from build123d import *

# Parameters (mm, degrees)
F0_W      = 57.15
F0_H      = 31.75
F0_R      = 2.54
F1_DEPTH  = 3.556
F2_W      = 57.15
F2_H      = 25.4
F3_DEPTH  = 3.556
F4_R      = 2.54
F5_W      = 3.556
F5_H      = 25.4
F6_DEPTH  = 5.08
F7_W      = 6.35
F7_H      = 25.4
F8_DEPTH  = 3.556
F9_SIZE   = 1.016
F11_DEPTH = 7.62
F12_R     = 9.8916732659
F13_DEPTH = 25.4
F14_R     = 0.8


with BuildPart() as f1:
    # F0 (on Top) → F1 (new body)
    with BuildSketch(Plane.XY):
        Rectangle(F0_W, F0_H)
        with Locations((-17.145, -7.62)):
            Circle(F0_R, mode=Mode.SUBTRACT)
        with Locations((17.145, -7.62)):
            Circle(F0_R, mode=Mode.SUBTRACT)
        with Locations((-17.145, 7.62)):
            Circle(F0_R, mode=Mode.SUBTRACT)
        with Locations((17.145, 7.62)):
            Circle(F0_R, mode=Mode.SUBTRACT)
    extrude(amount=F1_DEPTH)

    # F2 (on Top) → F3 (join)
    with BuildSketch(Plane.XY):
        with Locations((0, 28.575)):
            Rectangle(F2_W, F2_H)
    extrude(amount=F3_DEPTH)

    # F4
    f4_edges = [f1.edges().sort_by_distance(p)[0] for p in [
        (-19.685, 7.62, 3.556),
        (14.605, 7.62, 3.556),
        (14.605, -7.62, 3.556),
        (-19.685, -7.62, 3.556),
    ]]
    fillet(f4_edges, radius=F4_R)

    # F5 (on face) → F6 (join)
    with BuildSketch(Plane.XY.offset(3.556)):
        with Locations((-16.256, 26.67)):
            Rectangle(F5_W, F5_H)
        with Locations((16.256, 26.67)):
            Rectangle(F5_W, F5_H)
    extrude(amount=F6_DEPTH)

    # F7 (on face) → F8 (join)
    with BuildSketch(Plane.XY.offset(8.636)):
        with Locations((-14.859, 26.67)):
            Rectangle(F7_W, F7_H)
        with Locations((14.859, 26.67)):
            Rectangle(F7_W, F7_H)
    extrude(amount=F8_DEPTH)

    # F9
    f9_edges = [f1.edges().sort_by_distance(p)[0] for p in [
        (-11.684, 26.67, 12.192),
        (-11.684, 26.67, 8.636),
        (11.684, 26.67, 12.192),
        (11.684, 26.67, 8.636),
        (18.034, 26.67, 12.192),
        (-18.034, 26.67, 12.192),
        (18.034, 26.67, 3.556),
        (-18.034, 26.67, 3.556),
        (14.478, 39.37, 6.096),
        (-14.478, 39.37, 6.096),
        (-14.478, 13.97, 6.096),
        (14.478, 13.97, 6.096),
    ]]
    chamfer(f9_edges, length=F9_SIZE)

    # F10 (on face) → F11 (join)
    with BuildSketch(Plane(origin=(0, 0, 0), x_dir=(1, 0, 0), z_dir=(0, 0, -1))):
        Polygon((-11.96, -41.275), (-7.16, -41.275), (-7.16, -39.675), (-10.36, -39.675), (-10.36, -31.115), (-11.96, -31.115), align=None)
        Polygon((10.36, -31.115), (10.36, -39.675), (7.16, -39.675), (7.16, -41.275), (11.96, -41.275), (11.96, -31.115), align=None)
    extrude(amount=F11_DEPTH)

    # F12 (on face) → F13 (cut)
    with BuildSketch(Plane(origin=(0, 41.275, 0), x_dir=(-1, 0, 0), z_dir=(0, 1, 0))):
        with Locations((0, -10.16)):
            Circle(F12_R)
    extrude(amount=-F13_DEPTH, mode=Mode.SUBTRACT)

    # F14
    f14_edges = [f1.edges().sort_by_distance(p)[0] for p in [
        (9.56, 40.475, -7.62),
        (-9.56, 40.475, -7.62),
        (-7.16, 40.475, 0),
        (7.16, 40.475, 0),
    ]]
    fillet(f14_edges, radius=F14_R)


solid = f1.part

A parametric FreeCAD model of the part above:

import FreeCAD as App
import Part
import Sketcher

V = App.Vector
Q = App.Units.Quantity


def edges_at(feature, points):
    """Names of the edges that pass closest to the given points."""
    edges = feature.Shape.Edges
    near = lambda p: min(range(len(edges)), key=lambda i: edges[i].distToShape(Part.Vertex(*p))[0])
    return sorted({f"Edge{near(p) + 1}" for p in points})


def add_polygon(sketch, points):
    """Adds a closed chain of lines whose ends are joined by coincident constraints."""
    first, n = sketch.GeometryCount, len(points)
    for a, b in zip(points, points[1:] + points[:1]):
        sketch.addGeometry(Part.LineSegment(App.Vector(*a, 0), App.Vector(*b, 0)), False)
    for i in range(n):
        sketch.addConstraint(Sketcher.Constraint("Coincident", first + i, 2, first + (i + 1) % n, 1))

doc = App.newDocument("Part")
body = doc.addObject("PartDesign::Body", "Body")

# Sketch on XY plane
sketch1 = body.newObject("Sketcher::SketchObject", "Sketch")
sketch1.AttachmentSupport = (doc.getObject("XY_Plane"), [""])
sketch1.MapMode = "FlatFace"
add_polygon(sketch1, [(-28.575, 15.875), (-28.575, -15.875), (28.575, -15.875), (28.575, 15.875)])  # lines 0-3
sketch1.addGeometry(Part.Circle(V(-17.145, -7.62, 0), V(0, 0, 1), 2.54), False)  # 4
sketch1.addGeometry(Part.Circle(V(17.145, -7.62, 0), V(0, 0, 1), 2.54), False)  # 5
sketch1.addGeometry(Part.Circle(V(-17.145, 7.62, 0), V(0, 0, 1), 2.54), False)  # 6
sketch1.addGeometry(Part.Circle(V(17.145, 7.62, 0), V(0, 0, 1), 2.54), False)  # 7
sketch1.addConstraint([
    Sketcher.Constraint("Vertical", 0),
    Sketcher.Constraint("Horizontal", 1),
    Sketcher.Constraint("Vertical", 2),
    Sketcher.Constraint("Horizontal", 3),
    Sketcher.Constraint("Equal", 4, 5),
    Sketcher.Constraint("Equal", 5, 6),
    Sketcher.Constraint("Equal", 6, 7),
    Sketcher.Constraint("Symmetric", 5, 3, 6, 3, -1, 1),
    Sketcher.Constraint("Symmetric", 4, 3, 7, 3, -1, 1),
    Sketcher.Constraint("Symmetric", 0, 2, 2, 2, -1, 1),
    Sketcher.Constraint("Symmetric", 4, 3, 5, 3, -2),
    Sketcher.Constraint("Diameter", 4, Q("0.2 in")),
    Sketcher.Constraint("DistanceX", 1, 1, 1, 2, Q("2.25 in")),
    Sketcher.Constraint("DistanceY", 0, 2, 0, 1, Q("1.25 in")),
    Sketcher.Constraint("DistanceY", 4, 3, -1, 1, Q("0.3 in")),
    Sketcher.Constraint("DistanceX", 0, 2, 5, 3, Q("1.8 in")),
])
pad1 = body.newObject("PartDesign::Pad", "Pad")
pad1.Profile = sketch1
pad1.Length = Q("0.14 in")

# Sketch on XY plane
sketch2 = body.newObject("Sketcher::SketchObject", "Sketch001")
sketch2.AttachmentSupport = (doc.getObject("XY_Plane"), [""])
sketch2.MapMode = "FlatFace"
add_polygon(sketch2, [(-28.575, 41.275), (-28.575, 15.875), (28.575, 15.875), (28.575, 41.275)])  # lines 0-3
sketch2.addConstraint([
    Sketcher.Constraint("Vertical", 0),
    Sketcher.Constraint("Horizontal", 1),
    Sketcher.Constraint("Vertical", 2),
    Sketcher.Constraint("Horizontal", 3),
    Sketcher.Constraint("DistanceY", 0, 2, 0, 1, Q("1 in")),
    Sketcher.Constraint("DistanceX", 1, 1, 1, 2, Q("2.25 in")),
    Sketcher.Constraint("DistanceX", 0, 2, -1, 1, Q("1.125 in")),
    Sketcher.Constraint("DistanceY", -1, 1, 0, 2, Q("0.625 in")),
])
pad2 = body.newObject("PartDesign::Pad", "Pad001")
pad2.Profile = sketch2
pad2.Length = Q("0.14 in")
doc.recompute()

fillet = body.newObject("PartDesign::Fillet", "Fillet")
fillet.Base = (pad2, edges_at(pad2, [
    (-19.685, 7.62, 3.556),
    (14.605, 7.62, 3.556),
    (14.605, -7.62, 3.556),
    (-19.685, -7.62, 3.556),
]))
fillet.Radius = Q("0.1 in")

# Sketch on XY plane
sketch3 = body.newObject("Sketcher::SketchObject", "Sketch002")
sketch3.AttachmentSupport = (doc.getObject("XY_Plane"), [""])
sketch3.MapMode = "FlatFace"
sketch3.AttachmentOffset = App.Placement(V(0, 0, 0.14 * 25.4), App.Rotation())
add_polygon(sketch3, [(-18.034, 39.37), (-18.034, 13.97), (-14.478, 13.97), (-14.478, 39.37)])  # lines 0-3
add_polygon(sketch3, [(14.478, 39.37), (14.478, 13.97), (18.034, 13.97), (18.034, 39.37)])  # lines 4-7
sketch3.addConstraint([
    Sketcher.Constraint("Vertical", 0),
    Sketcher.Constraint("Horizontal", 1),
    Sketcher.Constraint("Vertical", 2),
    Sketcher.Constraint("Horizontal", 3),
    Sketcher.Constraint("Vertical", 4),
    Sketcher.Constraint("Horizontal", 5),
    Sketcher.Constraint("Vertical", 6),
    Sketcher.Constraint("Horizontal", 7),
    Sketcher.Constraint("Symmetric", 1, 2, 4, 2, -2),
    Sketcher.Constraint("Symmetric", 3, 2, 6, 2, -2),
    Sketcher.Constraint("DistanceY", 0, 2, 0, 1, Q("1 in")),
    Sketcher.Constraint("DistanceX", 1, 1, 1, 2, Q("0.14 in")),
    Sketcher.Constraint("DistanceX", 0, 2, -1, 1, Q("0.71 in")),
    Sketcher.Constraint("DistanceY", -1, 1, 0, 2, Q("0.55 in")),
])
pad3 = body.newObject("PartDesign::Pad", "Pad002")
pad3.Profile = sketch3
pad3.Length = Q("0.2 in")

# Sketch on XY plane
sketch4 = body.newObject("Sketcher::SketchObject", "Sketch003")
sketch4.AttachmentSupport = (doc.getObject("XY_Plane"), [""])
sketch4.MapMode = "FlatFace"
sketch4.AttachmentOffset = App.Placement(V(0, 0, 0.34 * 25.4), App.Rotation())
add_polygon(sketch4, [(-18.034, 39.37), (-18.034, 13.97), (-11.684, 13.97), (-11.684, 39.37)])  # lines 0-3
add_polygon(sketch4, [(11.684, 39.37), (11.684, 13.97), (18.034, 13.97), (18.034, 39.37)])  # lines 4-7
sketch4.addConstraint([
    Sketcher.Constraint("Vertical", 0),
    Sketcher.Constraint("Horizontal", 1),
    Sketcher.Constraint("Vertical", 2),
    Sketcher.Constraint("Horizontal", 3),
    Sketcher.Constraint("Vertical", 4),
    Sketcher.Constraint("Horizontal", 5),
    Sketcher.Constraint("Vertical", 6),
    Sketcher.Constraint("Horizontal", 7),
    Sketcher.Constraint("Symmetric", 1, 2, 4, 2, -2),
    Sketcher.Constraint("Symmetric", 3, 2, 6, 2, -2),
    Sketcher.Constraint("DistanceY", 0, 2, 0, 1, Q("1 in")),
    Sketcher.Constraint("DistanceX", 1, 1, 1, 2, Q("0.25 in")),
    Sketcher.Constraint("DistanceX", 0, 2, -1, 1, Q("0.71 in")),
    Sketcher.Constraint("DistanceY", -1, 1, 0, 2, Q("0.55 in")),
])
pad4 = body.newObject("PartDesign::Pad", "Pad003")
pad4.Profile = sketch4
pad4.Length = Q("0.14 in")
doc.recompute()

chamfer = body.newObject("PartDesign::Chamfer", "Chamfer")
chamfer.Base = (pad4, edges_at(pad4, [
    (-11.684, 26.67, 12.192),
    (-11.684, 26.67, 8.636),
    (11.684, 26.67, 12.192),
    (11.684, 26.67, 8.636),
    (18.034, 26.67, 12.192),
    (-18.034, 26.67, 12.192),
    (18.034, 26.67, 3.556),
    (-18.034, 26.67, 3.556),
    (14.478, 39.37, 6.096),
    (-14.478, 39.37, 6.096),
    (-14.478, 13.97, 6.096),
    (14.478, 13.97, 6.096),
]))
chamfer.Size = Q("0.04 in")

# Sketch on XY plane
sketch5 = body.newObject("Sketcher::SketchObject", "Sketch004")
sketch5.AttachmentSupport = (doc.getObject("XY_Plane"), [""])
sketch5.MapMode = "FlatFace"
add_polygon(sketch5, [(-11.96, 41.275), (-7.16, 41.275), (-7.16, 39.675), (-10.36, 39.675), (-10.36, 31.115), (-11.96, 31.115)])  # lines 0-5
add_polygon(sketch5, [(10.36, 31.115), (10.36, 39.675), (7.16, 39.675), (7.16, 41.275), (11.96, 41.275), (11.96, 31.115)])  # lines 6-11
sketch5.addConstraint([
    Sketcher.Constraint("Horizontal", 0),
    Sketcher.Constraint("Vertical", 1),
    Sketcher.Constraint("Horizontal", 2),
    Sketcher.Constraint("Vertical", 3),
    Sketcher.Constraint("Horizontal", 4),
    Sketcher.Constraint("Vertical", 5),
    Sketcher.Constraint("Vertical", 6),
    Sketcher.Constraint("Horizontal", 7),
    Sketcher.Constraint("Vertical", 8),
    Sketcher.Constraint("Horizontal", 9),
    Sketcher.Constraint("Vertical", 10),
    Sketcher.Constraint("Horizontal", 11),
    Sketcher.Constraint("Symmetric", 2, 2, 6, 2, -2),
    Sketcher.Constraint("Symmetric", 0, 2, 8, 2, -2),
    Sketcher.Constraint("Symmetric", 4, 2, 10, 2, -2),
    Sketcher.Constraint("Equal", 11, 1),
    Sketcher.Constraint("DistanceY", 5, 1, 5, 2, Q("0.4 in")),
    Sketcher.Constraint("DistanceY", -1, 1, 0, 2, Q("1.625 in")),
    Sketcher.Constraint("DistanceX", 0, 1, 0, 2, 4.8),
    Sketcher.Constraint("DistanceX", 2, 2, 2, 1, 3.2),
    Sketcher.Constraint("DistanceX", 0, 2, -1, 1, 7.16),
])
pad5 = body.newObject("PartDesign::Pad", "Pad004")
pad5.Profile = sketch5
pad5.Length = Q("0.3 in")
pad5.Reversed = True

# Sketch on XZ plane
sketch6 = body.newObject("Sketcher::SketchObject", "Sketch005")
sketch6.AttachmentSupport = (doc.getObject("XZ_Plane"), [""])
sketch6.MapMode = "FlatFace"
sketch6.AttachmentOffset = App.Placement(V(0, 0, -1.625 * 25.4), App.Rotation())
sketch6.addGeometry(Part.Circle(V(0, -10.16, 0), V(0, 0, 1), 9.891673), False)
sketch6.addConstraint([
    Sketcher.Constraint("PointOnObject", 0, 3, -2),
    Sketcher.Constraint("DistanceY", 0, 3, -1, 1, Q("0.4 in")),
    Sketcher.Constraint("Diameter", 0, 19.783347),
])
pocket1 = body.newObject("PartDesign::Pocket", "Pocket")
pocket1.Profile = sketch6
pocket1.Length = Q("1 in")
pocket1.Reversed = True
doc.recompute()

fillet2 = body.newObject("PartDesign::Fillet", "Fillet001")
fillet2.Base = (pocket1, edges_at(pocket1, [
    (9.56, 40.475, -7.62),
    (-9.56, 40.475, -7.62),
    (-7.16, 40.475, 0),
    (7.16, 40.475, 0),
]))
fillet2.Radius = 0.8

doc.recompute()
